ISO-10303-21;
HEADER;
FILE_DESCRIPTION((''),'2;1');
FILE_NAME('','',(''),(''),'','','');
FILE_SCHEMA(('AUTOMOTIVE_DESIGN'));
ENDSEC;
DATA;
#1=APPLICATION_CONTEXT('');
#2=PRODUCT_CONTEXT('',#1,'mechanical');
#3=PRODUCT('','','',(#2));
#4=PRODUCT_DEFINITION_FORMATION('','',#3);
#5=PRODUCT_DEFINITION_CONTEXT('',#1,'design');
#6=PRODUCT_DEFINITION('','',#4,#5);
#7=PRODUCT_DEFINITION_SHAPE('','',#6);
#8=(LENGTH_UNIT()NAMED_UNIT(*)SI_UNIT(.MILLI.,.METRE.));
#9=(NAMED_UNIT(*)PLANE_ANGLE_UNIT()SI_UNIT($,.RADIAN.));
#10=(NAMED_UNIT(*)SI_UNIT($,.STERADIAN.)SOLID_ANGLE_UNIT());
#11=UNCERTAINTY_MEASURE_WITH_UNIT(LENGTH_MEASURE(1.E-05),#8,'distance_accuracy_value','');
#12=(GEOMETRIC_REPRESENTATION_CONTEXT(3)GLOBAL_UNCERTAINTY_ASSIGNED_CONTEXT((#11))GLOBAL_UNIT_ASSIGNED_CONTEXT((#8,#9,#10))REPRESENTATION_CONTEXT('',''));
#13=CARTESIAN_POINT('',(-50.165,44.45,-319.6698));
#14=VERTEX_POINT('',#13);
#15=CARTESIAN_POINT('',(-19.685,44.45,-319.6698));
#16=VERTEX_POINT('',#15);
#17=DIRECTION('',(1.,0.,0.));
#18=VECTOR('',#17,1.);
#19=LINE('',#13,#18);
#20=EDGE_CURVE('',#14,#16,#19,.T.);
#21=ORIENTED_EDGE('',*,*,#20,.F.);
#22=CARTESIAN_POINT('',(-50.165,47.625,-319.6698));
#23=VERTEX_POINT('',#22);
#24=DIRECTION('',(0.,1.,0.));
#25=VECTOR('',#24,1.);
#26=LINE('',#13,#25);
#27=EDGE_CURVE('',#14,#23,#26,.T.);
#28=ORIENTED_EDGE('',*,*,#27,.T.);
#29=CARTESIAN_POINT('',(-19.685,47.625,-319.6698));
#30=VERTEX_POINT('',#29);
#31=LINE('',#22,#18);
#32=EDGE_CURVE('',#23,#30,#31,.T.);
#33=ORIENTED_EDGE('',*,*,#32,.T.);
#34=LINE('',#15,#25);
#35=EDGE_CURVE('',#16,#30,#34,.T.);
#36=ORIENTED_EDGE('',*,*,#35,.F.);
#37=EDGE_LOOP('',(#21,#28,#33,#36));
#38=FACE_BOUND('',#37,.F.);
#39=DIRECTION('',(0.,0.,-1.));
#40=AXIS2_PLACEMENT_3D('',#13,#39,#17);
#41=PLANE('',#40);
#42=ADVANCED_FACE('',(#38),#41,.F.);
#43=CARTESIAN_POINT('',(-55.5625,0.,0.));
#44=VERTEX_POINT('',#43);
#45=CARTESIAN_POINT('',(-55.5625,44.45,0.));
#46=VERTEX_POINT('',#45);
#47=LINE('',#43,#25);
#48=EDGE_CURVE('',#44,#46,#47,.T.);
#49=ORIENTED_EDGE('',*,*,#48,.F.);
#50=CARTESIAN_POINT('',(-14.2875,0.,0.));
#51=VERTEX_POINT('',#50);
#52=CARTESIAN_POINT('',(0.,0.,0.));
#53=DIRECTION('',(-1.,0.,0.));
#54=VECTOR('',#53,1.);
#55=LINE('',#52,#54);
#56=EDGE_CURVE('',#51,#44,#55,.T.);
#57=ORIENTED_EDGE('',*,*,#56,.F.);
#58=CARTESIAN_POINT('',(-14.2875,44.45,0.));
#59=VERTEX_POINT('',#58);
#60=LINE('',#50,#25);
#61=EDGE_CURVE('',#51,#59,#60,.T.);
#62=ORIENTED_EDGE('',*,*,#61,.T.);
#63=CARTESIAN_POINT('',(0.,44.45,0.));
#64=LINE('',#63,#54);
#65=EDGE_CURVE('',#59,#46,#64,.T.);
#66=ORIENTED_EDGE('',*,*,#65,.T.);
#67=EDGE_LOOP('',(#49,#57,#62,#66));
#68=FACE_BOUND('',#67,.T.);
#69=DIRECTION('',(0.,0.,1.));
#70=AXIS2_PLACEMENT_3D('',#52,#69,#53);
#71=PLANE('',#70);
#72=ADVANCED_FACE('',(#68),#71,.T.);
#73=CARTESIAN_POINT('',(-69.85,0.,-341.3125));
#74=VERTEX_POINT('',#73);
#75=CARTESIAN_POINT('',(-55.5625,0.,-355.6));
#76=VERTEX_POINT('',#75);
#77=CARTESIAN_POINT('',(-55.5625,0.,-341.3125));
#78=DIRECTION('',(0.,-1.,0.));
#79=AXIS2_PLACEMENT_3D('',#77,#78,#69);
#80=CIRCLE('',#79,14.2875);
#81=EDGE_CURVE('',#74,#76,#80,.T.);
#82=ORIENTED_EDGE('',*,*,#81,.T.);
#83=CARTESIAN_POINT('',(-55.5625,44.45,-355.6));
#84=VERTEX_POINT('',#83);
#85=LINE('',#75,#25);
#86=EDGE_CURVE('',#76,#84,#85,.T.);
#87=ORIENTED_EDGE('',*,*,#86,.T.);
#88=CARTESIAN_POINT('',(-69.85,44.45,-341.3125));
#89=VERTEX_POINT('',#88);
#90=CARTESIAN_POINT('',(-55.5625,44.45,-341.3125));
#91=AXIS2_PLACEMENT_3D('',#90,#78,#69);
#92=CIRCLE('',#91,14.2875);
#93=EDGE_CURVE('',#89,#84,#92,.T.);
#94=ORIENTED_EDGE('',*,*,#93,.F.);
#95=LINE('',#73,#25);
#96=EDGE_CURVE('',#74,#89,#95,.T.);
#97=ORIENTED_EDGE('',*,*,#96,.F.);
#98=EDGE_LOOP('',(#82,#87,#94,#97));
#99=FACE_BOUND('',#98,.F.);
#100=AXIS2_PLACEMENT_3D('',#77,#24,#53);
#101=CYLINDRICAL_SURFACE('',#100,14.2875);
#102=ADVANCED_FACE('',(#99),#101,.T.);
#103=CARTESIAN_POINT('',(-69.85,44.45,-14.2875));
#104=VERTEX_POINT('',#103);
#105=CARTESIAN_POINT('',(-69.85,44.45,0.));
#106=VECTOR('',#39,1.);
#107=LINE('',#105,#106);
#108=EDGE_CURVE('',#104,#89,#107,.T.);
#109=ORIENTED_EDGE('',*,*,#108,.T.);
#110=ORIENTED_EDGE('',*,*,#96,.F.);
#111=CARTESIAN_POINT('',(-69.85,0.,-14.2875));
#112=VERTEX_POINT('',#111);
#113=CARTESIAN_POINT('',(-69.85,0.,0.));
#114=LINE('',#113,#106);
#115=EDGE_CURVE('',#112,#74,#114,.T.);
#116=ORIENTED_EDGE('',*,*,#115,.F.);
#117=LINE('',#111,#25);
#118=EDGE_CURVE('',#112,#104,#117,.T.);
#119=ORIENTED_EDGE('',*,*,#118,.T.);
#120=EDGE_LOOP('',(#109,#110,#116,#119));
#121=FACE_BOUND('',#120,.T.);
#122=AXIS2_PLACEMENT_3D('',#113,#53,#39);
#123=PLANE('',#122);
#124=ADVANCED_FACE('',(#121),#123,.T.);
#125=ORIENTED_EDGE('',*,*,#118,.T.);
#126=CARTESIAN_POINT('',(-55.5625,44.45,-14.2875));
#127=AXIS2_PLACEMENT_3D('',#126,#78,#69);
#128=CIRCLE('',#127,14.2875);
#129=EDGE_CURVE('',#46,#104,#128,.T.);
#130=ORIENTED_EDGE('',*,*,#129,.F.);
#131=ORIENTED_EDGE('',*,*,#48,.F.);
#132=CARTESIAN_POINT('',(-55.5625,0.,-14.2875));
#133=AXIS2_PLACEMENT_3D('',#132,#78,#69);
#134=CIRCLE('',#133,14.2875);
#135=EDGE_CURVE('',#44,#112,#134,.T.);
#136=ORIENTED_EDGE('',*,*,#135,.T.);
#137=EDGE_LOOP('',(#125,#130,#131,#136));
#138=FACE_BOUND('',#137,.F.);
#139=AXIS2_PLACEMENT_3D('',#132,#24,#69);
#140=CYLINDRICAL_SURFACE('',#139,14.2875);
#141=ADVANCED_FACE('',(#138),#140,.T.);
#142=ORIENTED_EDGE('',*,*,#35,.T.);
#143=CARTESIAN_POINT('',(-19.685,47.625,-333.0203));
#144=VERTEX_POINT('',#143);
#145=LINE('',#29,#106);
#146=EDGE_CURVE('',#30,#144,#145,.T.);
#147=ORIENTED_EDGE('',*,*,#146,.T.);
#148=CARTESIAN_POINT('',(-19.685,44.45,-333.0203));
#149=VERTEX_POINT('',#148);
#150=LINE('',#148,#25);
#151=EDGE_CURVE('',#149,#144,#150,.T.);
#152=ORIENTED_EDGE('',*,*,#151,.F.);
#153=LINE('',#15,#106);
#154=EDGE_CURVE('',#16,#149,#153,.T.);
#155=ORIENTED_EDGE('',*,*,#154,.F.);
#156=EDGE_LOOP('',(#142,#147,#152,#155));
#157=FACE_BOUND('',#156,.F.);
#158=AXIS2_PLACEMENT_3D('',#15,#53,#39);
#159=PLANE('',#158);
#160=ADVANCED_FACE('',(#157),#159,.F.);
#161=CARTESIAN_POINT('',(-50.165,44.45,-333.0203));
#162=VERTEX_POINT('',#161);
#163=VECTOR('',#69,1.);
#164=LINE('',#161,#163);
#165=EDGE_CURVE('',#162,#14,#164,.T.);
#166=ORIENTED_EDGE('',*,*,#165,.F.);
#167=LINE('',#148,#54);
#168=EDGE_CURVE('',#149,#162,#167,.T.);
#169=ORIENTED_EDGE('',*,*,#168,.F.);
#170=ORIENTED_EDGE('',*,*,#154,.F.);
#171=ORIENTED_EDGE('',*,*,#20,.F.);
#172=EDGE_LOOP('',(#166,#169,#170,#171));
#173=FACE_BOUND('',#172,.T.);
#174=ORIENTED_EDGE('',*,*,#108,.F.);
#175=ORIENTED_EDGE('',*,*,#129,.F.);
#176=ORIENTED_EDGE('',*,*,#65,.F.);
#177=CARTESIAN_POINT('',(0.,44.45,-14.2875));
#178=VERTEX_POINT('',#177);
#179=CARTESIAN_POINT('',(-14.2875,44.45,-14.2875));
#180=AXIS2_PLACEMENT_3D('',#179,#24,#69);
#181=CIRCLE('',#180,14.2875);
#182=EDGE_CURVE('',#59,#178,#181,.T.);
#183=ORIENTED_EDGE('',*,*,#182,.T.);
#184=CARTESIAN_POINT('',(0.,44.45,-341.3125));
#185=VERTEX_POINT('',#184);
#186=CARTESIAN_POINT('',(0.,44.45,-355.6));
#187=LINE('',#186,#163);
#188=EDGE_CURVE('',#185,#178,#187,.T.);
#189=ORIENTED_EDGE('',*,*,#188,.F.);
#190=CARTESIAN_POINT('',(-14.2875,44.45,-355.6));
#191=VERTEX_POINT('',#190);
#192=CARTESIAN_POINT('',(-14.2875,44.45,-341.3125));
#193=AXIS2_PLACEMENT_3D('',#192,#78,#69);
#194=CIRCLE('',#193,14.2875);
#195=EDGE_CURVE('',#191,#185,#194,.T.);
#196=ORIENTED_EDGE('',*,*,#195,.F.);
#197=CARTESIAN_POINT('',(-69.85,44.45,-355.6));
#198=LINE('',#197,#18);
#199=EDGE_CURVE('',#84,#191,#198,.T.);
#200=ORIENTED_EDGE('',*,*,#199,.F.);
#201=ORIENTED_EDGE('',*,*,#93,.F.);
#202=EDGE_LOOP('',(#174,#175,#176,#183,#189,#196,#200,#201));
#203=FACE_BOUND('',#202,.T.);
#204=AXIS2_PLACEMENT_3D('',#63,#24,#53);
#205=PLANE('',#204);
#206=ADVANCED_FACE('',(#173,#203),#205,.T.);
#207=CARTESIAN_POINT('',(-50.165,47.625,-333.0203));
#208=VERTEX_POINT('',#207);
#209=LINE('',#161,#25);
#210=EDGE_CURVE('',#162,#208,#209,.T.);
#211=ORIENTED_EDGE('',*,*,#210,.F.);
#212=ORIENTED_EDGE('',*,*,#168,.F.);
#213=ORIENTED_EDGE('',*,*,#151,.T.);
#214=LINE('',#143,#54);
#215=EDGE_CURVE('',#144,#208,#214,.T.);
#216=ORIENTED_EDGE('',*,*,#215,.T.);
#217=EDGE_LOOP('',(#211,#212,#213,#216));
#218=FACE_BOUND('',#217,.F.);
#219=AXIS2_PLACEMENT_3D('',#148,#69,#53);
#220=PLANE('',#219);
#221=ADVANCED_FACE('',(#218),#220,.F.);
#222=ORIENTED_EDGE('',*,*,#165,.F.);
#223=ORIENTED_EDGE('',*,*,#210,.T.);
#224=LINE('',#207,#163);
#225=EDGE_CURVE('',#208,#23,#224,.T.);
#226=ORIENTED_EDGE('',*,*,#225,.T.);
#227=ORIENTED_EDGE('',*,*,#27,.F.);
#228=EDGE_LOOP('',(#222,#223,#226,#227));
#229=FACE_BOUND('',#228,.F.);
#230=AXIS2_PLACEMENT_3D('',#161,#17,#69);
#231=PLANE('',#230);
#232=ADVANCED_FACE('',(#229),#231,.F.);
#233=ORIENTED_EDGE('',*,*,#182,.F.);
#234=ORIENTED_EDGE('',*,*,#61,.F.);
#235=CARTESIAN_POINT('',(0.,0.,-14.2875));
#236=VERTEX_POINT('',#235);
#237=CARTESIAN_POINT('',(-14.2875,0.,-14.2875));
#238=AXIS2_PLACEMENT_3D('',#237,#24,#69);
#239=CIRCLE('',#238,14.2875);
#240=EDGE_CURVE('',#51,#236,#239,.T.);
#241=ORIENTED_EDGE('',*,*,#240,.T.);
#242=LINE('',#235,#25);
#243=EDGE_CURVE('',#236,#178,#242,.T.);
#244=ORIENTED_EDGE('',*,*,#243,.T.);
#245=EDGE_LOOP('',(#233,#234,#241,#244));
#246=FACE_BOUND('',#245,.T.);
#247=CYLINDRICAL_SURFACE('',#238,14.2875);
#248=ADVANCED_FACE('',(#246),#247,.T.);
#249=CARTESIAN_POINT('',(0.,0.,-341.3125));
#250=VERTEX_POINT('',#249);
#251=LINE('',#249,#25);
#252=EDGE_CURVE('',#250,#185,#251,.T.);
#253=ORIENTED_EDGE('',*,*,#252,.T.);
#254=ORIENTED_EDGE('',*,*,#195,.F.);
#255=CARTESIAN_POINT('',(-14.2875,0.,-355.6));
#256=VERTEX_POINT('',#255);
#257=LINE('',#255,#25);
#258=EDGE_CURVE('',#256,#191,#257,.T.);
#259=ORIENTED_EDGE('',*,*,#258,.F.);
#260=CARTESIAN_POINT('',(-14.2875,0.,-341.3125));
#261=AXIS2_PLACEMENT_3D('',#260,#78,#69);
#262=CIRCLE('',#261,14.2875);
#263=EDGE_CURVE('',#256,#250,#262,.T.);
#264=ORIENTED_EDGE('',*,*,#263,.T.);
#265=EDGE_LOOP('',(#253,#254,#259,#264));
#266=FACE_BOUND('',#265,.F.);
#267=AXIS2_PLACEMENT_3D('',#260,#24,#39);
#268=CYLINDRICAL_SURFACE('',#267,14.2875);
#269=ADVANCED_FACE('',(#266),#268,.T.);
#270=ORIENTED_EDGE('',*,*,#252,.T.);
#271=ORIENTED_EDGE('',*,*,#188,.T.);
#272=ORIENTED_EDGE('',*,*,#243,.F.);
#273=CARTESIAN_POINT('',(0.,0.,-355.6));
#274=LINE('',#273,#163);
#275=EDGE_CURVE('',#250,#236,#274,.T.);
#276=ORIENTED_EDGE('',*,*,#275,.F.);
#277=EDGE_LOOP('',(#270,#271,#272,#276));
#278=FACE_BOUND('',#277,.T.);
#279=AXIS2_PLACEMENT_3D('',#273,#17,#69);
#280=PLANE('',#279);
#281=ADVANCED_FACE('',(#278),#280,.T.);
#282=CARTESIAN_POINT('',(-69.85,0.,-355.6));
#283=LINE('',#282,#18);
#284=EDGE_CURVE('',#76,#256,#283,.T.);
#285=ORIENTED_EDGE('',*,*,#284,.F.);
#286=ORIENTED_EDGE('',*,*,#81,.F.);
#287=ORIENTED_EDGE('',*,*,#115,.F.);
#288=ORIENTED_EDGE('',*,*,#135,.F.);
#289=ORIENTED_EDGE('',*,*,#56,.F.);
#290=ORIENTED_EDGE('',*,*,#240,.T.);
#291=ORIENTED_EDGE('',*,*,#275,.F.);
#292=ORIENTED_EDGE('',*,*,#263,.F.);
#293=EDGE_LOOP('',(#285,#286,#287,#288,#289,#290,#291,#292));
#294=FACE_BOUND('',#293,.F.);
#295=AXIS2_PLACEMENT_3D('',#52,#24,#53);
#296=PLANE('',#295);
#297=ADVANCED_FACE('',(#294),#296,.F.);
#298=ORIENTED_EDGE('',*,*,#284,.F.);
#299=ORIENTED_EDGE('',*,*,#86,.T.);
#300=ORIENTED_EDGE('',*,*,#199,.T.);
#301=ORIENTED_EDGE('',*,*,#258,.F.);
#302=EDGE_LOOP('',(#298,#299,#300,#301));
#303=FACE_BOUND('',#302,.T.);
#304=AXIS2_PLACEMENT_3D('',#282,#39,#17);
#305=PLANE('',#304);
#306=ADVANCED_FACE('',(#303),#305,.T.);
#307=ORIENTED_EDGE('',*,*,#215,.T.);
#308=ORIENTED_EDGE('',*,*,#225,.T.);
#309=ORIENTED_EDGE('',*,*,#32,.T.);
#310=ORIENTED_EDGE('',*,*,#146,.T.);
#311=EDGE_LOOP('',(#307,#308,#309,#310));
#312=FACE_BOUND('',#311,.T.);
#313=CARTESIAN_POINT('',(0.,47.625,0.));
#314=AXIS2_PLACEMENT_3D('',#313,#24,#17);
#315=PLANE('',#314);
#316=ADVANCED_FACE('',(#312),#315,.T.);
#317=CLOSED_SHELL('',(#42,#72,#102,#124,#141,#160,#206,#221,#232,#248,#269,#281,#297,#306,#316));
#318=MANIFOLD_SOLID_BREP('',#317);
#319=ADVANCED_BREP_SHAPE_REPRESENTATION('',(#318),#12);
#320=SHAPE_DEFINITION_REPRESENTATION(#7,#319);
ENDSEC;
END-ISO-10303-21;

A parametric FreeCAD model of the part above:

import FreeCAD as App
import Part
import Sketcher
Q = App.Units.Quantity


def edges_at(feature, points):
    """Names of the edges that pass closest to the given points."""
    edges = feature.Shape.Edges
    near = lambda p: min(range(len(edges)), key=lambda i: edges[i].distToShape(Part.Vertex(*p))[0])
    return sorted({f"Edge{near(p) + 1}" for p in points})


def add_polygon(sketch, points):
    """Adds a closed chain of lines whose ends are joined by coincident constraints."""
    first, n = sketch.GeometryCount, len(points)
    for a, b in zip(points, points[1:] + points[:1]):
        sketch.addGeometry(Part.LineSegment(App.Vector(*a, 0), App.Vector(*b, 0)), False)
    for i in range(n):
        sketch.addConstraint(Sketcher.Constraint("Coincident", first + i, 2, first + (i + 1) % n, 1))

doc = App.newDocument("Part")
params = doc.addObject("Spreadsheet::Sheet", "Params")
for row, (alias, value) in enumerate([
    ("sketch1_height", "14 in"),
    ("sketch1_width", "2.75 in"),
    ("pad1_length", "1.75 in"),
    ("fillet_radius", "0.5625 in"),
    ("sketch2_width", "1.2 in"),
    ("pad2_length", "0.125 in"),
], start=1):
    params.set(f"A{row}", alias)
    params.set(f"B{row}", "=" + value)
    params.setAlias(f"B{row}", alias)

body = doc.addObject("PartDesign::Body", "Body")

sketch1 = doc.addObject("Sketcher::SketchObject", "Sketch")
body.addObject(sketch1)
sketch1.AttachmentSupport = (doc.XZ_Plane, [""])
sketch1.MapMode = "FlatFace"
add_polygon(sketch1, [(-69.85, 0), (0, 0), (0, -355.6), (-69.85, -355.6)])
sketch1.addConstraint([
    Sketcher.Constraint("Horizontal", 0),
    Sketcher.Constraint("Vertical", 1),
    Sketcher.Constraint("Horizontal", 2),
    Sketcher.Constraint("Vertical", 3),
    Sketcher.Constraint("Coincident", 0, 2, -1, 1),
    Sketcher.Constraint("DistanceY", 1, 2, 1, 1, Q("14 in")),
    Sketcher.Constraint("DistanceX", 0, 1, 0, 2, Q("2.75 in")),
])
sketch1.setExpression("Constraints[9]", "Params.sketch1_height")
sketch1.setExpression("Constraints[10]", "Params.sketch1_width")
pad1 = doc.addObject("PartDesign::Pad", "Pad")
body.addObject(pad1)
pad1.Profile = sketch1
pad1.setExpression("Length", "Params.pad1_length")
pad1.Reversed = True
doc.recompute()

fillet = doc.addObject("PartDesign::Fillet", "Fillet")
body.addObject(fillet)
fillet.Base = (pad1, edges_at(pad1, [
    (0, 22.225, 0),
    (-69.85, 22.225, 0),
    (0, 22.225, -355.6),
    (-69.85, 22.225, -355.6),
]))
fillet.setExpression("Radius", "Params.fillet_radius")

sketch2 = doc.addObject("Sketcher::SketchObject", "Sketch001")
body.addObject(sketch2)
sketch2.AttachmentSupport = (doc.XZ_Plane, [""])
sketch2.MapMode = "FlatFace"
sketch2.AttachmentOffset = App.Placement(App.Vector(0, 0, -1.75 * 25.4), App.Rotation())
add_polygon(sketch2, [(-19.685, -319.6698), (-19.685, -333.0203), (-50.165, -333.0203), (-50.165, -319.6698)])
sketch2.addConstraint([
    Sketcher.Constraint("Vertical", 0),
    Sketcher.Constraint("Horizontal", 1),
    Sketcher.Constraint("Vertical", 2),
    Sketcher.Constraint("Horizontal", 3),
    Sketcher.Constraint("DistanceX", 1, 2, 1, 1, Q("1.2 in")),
    Sketcher.Constraint("DistanceY", 0, 2, 0, 1, Q("0.5256 in")),
    Sketcher.Constraint("DistanceX", 0, 2, -1, 1, Q("0.775 in")),
    Sketcher.Constraint("DistanceY", 0, 2, -1, 1, 333.0203),
])
sketch2.setExpression("Constraints[8]", "Params.sketch2_width")
pad2 = doc.addObject("PartDesign::Pad", "Pad001")
body.addObject(pad2)
pad2.Profile = sketch2
pad2.setExpression("Length", "Params.pad2_length")
pad2.Reversed = True

doc.recompute()
